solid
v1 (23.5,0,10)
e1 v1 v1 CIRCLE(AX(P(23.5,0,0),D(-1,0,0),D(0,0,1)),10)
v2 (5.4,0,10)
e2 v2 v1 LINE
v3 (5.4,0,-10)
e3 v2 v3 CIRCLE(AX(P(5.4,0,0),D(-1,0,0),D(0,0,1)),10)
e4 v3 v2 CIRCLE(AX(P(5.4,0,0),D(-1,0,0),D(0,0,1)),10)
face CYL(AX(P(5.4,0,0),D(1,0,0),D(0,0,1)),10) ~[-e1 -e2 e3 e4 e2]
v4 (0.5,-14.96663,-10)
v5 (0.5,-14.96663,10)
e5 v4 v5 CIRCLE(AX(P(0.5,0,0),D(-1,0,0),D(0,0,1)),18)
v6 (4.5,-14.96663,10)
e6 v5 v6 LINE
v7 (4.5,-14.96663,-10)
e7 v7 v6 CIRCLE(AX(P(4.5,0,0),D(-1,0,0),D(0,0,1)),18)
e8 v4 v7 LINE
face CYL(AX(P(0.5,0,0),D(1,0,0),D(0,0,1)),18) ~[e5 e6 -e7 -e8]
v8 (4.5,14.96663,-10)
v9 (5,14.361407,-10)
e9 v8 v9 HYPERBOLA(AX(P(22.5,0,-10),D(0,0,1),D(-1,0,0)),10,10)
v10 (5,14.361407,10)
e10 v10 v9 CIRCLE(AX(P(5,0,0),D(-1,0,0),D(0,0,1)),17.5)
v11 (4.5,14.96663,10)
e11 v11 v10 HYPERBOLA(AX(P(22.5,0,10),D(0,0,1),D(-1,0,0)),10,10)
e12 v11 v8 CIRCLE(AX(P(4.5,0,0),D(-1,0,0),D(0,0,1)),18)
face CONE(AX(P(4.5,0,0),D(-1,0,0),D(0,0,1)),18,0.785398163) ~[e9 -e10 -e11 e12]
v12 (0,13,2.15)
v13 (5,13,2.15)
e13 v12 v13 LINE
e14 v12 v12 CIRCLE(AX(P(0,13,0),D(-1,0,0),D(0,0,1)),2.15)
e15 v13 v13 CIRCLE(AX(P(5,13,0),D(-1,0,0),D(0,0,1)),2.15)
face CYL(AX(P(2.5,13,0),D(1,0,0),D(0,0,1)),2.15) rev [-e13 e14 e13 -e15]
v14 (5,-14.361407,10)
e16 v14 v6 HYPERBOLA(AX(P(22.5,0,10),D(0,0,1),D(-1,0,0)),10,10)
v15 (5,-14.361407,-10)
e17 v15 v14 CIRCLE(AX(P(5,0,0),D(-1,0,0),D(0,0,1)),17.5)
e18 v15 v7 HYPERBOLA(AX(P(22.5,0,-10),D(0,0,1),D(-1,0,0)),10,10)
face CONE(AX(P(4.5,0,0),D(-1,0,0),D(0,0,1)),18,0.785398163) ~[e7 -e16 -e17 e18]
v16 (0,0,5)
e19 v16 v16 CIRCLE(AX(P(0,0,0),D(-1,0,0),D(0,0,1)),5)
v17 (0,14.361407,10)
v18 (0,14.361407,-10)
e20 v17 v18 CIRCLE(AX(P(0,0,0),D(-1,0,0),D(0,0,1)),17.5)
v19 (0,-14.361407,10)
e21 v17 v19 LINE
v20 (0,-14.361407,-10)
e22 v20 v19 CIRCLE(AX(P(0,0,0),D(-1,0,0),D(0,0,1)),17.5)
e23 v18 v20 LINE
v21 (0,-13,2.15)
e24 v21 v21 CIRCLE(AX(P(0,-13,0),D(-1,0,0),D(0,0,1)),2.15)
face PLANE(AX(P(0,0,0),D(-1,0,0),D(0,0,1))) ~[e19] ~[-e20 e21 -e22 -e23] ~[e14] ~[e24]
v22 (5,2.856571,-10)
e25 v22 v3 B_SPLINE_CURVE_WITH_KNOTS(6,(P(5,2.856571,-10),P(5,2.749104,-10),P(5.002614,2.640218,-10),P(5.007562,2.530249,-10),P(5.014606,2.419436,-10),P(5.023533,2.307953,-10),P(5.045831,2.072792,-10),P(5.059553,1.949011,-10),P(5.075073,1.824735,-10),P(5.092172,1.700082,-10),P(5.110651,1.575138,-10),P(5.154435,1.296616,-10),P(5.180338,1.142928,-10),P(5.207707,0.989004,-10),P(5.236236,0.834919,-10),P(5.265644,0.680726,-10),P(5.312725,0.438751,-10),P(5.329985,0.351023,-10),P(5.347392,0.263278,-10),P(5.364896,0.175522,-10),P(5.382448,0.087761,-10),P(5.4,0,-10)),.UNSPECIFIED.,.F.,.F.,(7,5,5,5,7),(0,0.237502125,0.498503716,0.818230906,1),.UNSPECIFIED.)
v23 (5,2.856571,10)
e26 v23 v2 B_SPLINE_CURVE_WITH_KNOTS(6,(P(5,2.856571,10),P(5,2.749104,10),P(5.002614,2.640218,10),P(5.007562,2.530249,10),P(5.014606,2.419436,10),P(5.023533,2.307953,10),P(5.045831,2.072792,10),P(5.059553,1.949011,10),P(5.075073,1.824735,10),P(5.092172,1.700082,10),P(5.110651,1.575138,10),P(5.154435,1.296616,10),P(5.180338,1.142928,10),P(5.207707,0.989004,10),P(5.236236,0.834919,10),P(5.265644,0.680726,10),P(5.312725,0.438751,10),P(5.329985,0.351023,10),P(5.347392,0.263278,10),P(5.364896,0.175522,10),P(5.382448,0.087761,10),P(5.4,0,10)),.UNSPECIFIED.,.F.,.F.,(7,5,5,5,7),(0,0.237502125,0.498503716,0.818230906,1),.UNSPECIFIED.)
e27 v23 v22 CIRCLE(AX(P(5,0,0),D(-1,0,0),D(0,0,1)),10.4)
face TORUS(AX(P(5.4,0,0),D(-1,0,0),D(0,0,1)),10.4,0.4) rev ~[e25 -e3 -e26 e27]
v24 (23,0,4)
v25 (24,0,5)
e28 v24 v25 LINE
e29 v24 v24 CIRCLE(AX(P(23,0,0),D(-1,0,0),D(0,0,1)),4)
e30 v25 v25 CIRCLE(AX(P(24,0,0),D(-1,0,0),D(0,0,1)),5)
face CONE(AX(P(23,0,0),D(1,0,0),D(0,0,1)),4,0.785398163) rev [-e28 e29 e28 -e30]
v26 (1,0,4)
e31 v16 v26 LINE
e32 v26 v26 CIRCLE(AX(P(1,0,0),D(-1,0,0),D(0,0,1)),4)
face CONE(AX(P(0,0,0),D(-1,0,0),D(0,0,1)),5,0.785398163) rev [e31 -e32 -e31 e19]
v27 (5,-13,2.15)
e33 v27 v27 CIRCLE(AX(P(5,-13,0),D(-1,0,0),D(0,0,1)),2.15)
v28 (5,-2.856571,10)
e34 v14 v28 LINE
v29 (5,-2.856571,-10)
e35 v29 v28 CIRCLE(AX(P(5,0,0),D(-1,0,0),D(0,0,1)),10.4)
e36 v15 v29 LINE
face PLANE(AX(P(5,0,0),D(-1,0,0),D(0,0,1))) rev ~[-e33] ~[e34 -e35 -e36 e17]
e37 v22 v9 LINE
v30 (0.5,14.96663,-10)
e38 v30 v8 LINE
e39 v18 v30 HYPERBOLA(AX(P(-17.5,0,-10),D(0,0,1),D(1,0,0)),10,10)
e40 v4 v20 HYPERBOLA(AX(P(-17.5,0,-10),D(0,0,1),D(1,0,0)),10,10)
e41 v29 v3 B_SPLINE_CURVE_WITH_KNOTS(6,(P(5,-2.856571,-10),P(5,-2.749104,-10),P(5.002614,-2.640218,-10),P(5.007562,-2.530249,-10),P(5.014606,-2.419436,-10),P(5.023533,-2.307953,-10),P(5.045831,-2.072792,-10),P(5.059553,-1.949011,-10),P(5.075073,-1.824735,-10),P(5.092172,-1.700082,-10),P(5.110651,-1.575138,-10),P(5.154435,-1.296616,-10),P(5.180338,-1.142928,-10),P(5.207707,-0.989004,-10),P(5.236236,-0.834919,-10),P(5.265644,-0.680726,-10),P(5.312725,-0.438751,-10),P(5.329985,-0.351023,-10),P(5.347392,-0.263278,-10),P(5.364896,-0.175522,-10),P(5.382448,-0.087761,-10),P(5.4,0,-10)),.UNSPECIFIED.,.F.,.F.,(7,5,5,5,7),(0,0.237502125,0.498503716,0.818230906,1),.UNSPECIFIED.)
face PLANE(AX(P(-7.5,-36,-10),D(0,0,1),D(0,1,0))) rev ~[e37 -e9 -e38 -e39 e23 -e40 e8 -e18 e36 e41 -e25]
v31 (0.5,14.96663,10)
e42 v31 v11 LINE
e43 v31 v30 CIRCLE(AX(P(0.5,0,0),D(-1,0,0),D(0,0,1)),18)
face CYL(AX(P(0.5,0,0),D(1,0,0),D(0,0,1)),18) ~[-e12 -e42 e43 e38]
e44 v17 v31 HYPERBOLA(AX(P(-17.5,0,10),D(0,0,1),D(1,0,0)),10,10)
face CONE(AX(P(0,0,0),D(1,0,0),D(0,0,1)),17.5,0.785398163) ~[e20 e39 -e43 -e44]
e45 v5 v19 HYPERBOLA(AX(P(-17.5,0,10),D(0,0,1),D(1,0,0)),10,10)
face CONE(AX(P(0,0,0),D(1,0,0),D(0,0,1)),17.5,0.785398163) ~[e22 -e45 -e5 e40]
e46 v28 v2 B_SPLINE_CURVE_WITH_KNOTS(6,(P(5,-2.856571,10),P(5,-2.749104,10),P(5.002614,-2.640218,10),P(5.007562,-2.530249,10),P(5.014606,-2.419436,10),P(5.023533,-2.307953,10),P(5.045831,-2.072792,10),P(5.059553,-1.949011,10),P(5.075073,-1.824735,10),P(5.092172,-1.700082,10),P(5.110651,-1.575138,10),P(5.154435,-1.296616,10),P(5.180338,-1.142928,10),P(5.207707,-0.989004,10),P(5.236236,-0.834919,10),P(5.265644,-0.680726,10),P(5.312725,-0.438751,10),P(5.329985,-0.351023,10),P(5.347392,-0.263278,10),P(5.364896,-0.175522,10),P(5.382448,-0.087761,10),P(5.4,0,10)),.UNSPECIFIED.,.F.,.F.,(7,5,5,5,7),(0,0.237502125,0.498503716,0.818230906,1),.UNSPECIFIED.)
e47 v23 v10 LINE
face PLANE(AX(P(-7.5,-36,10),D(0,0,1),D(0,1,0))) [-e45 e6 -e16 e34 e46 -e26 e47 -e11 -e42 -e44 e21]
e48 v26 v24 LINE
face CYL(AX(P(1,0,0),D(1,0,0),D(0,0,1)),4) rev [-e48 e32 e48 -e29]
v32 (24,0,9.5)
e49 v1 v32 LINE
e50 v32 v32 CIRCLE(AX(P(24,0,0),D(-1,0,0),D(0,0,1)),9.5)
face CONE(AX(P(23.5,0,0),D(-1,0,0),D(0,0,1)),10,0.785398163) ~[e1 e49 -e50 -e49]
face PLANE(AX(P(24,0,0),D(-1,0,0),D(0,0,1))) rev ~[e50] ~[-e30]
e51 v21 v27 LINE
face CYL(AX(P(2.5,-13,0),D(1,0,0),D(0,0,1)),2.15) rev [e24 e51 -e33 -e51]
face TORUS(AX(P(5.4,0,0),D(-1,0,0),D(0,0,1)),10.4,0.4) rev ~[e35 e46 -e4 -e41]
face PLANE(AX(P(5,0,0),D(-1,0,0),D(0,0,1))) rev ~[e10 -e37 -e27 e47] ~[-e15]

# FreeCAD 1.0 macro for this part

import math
import FreeCAD as App
import Part
import Sketcher
Q = App.Units.Quantity


def add_polygon(sketch, points):
    """Adds a closed chain of lines whose ends are joined by coincident constraints."""
    first, n = sketch.GeometryCount, len(points)
    for a, b in zip(points, points[1:] + points[:1]):
        sketch.addGeometry(Part.LineSegment(App.Vector(*a, 0), App.Vector(*b, 0)), False)
    for i in range(n):
        sketch.addConstraint(Sketcher.Constraint("Coincident", first + i, 2, first + (i + 1) % n, 1))

doc = App.newDocument("Part")
body = doc.addObject("PartDesign::Body", "Body")

sketch1 = body.newObject("Sketcher::SketchObject", "Sketch")
sketch1.AttachmentSupport = (doc.getObject("XY_Plane"), [""])
sketch1.MapMode = "FlatFace"
sketch1.addGeometry([
    Part.LineSegment(App.Vector(0, 17.5, 0), App.Vector(0, 0, 0)),
    Part.LineSegment(App.Vector(0, 0, 0), App.Vector(24, 0, 0)),
    Part.LineSegment(App.Vector(24, 0, 0), App.Vector(24, 9.5, 0)),
    Part.LineSegment(App.Vector(24, 9.5, 0), App.Vector(23.5, 10, 0)),
    Part.LineSegment(App.Vector(23.5, 10, 0), App.Vector(5.4, 10, 0)),
    Part.ArcOfCircle(Part.Circle(App.Vector(5.4, 10.4, 0), App.Vector(0, 0, 1), 0.4), math.radians(-180), math.radians(-90)),
    Part.LineSegment(App.Vector(5, 10.4, 0), App.Vector(5, 17.5, 0)),
    Part.LineSegment(App.Vector(5, 17.5, 0), App.Vector(4.5, 18, 0)),
    Part.LineSegment(App.Vector(4.5, 18, 0), App.Vector(0.5, 18, 0)),
    Part.LineSegment(App.Vector(0.5, 18, 0), App.Vector(0, 17.5, 0)),
], False)
sketch1.addConstraint([
    Sketcher.Constraint("Coincident", 0, 2, 1, 1),
    Sketcher.Constraint("Coincident", 1, 2, 2, 1),
    Sketcher.Constraint("Coincident", 2, 2, 3, 1),
    Sketcher.Constraint("Coincident", 3, 2, 4, 1),
    Sketcher.Constraint("Tangent", 4, 2, 5, 2),
    Sketcher.Constraint("Tangent", 5, 1, 6, 1),
    Sketcher.Constraint("Coincident", 6, 2, 7, 1),
    Sketcher.Constraint("Coincident", 7, 2, 8, 1),
    Sketcher.Constraint("Coincident", 8, 2, 9, 1),
    Sketcher.Constraint("Coincident", 9, 2, 0, 1),
    Sketcher.Constraint("Vertical", 0),
    Sketcher.Constraint("Horizontal", 1),
    Sketcher.Constraint("Vertical", 2),
    Sketcher.Constraint("Horizontal", 4),
    Sketcher.Constraint("Vertical", 6),
    Sketcher.Constraint("Horizontal", 8),
    Sketcher.Constraint("Coincident", 0, 2, -1, 1),
    Sketcher.Constraint("Parallel", 3, 7),
    Sketcher.Constraint("Perpendicular", 7, 9),
    Sketcher.Constraint("Horizontal", 6, 2, 9, 2),
    Sketcher.Constraint("Equal", 3, 7),
    Sketcher.Constraint("Equal", 7, 9),
    Sketcher.Constraint("Radius", 5, Q("0.4 mm")),
    Sketcher.Constraint("DistanceX", 1, 1, 1, 2, Q("24 mm")),
    Sketcher.Constraint("DistanceX", 8, 2, 8, 1, Q("4 mm")),
    Sketcher.Constraint("DistanceX", 4, 2, 4, 1, Q("18.1 mm")),
    Sketcher.Constraint("DistanceY", 0, 2, 0, 1, Q("17.5 mm")),
    Sketcher.Constraint("DistanceY", 2, 1, 2, 2, Q("9.5 mm")),
])
revolution = body.newObject("PartDesign::Revolution", "Revolution")
revolution.Profile = sketch1
revolution.ReferenceAxis = (sketch1, ["H_Axis"])
revolution.Angle = 360

sketch2 = body.newObject("Sketcher::SketchObject", "Sketch001")
sketch2.AttachmentSupport = (doc.getObject("XY_Plane"), [""])
sketch2.MapMode = "FlatFace"
add_polygon(sketch2, [(0, 5), (0, 0), (24, 0), (24, 5), (23, 4), (1, 4)])
sketch2.addConstraint([
    Sketcher.Constraint("Vertical", 0),
    Sketcher.Constraint("Horizontal", 1),
    Sketcher.Constraint("Vertical", 2),
    Sketcher.Constraint("Horizontal", 4),
    Sketcher.Constraint("Coincident", 0, 2, -1, 1),
    Sketcher.Constraint("Perpendicular", 3, 5),
    Sketcher.Constraint("Horizontal", 2, 2, 5, 2),
    Sketcher.Constraint("Equal", 3, 5),
    Sketcher.Constraint("DistanceX", 1, 1, 1, 2, Q("24 mm")),
    Sketcher.Constraint("DistanceX", 4, 2, 4, 1, Q("22 mm")),
    Sketcher.Constraint("DistanceY", 0, 2, 0, 1, Q("5 mm")),
])
groove = body.newObject("PartDesign::Groove", "Groove")
groove.Profile = sketch2
groove.ReferenceAxis = (sketch2, ["H_Axis"])
groove.Angle = 360

sketch3 = body.newObject("Sketcher::SketchObject", "Sketch002")
sketch3.AttachmentSupport = (doc.getObject("XY_Plane"), [""])
sketch3.MapMode = "FlatFace"
add_polygon(sketch3, [(0, 15.2), (0, 13), (5, 13), (5, 15.2)])
sketch3.addGeometry(Part.LineSegment(App.Vector(5, 13, 0), App.Vector(0, 13, 0)), True)
sketch3.addConstraint([
    Sketcher.Constraint("Vertical", 0),
    Sketcher.Constraint("Horizontal", 1),
    Sketcher.Constraint("Vertical", 2),
    Sketcher.Constraint("Horizontal", 3),
    Sketcher.Constraint("Horizontal", 4),
    Sketcher.Constraint("Coincident", 4, 1, 1, 2),
    Sketcher.Constraint("PointOnObject", 0, 2, -2),
    Sketcher.Constraint("PointOnObject", 4, 2, -2),
    Sketcher.Constraint("DistanceX", 1, 1, 1, 2, Q("5 mm")),
    Sketcher.Constraint("DistanceY", -1, 1, 0, 2, Q("13 mm")),
    Sketcher.Constraint("DistanceY", 0, 2, 0, 1, Q("2.15 mm")),
])
groove2 = body.newObject("PartDesign::Groove", "Groove001")
groove2.Profile = sketch3
groove2.ReferenceAxis = (sketch3, ["Axis0"])
groove2.Angle = 360

sketch4 = body.newObject("Sketcher::SketchObject", "Sketch003")
sketch4.AttachmentSupport = (doc.getObject("XY_Plane"), [""])
sketch4.MapMode = "FlatFace"
add_polygon(sketch4, [(0, -10.8), (0, -13), (5, -13), (5, -10.8)])
sketch4.addGeometry(Part.LineSegment(App.Vector(5, -13, 0), App.Vector(0, -13, 0)), True)
sketch4.addConstraint([
    Sketcher.Constraint("Vertical", 0),
    Sketcher.Constraint("Horizontal", 1),
    Sketcher.Constraint("Vertical", 2),
    Sketcher.Constraint("Horizontal", 3),
    Sketcher.Constraint("Horizontal", 4),
    Sketcher.Constraint("Coincident", 4, 1, 1, 2),
    Sketcher.Constraint("PointOnObject", 0, 2, -2),
    Sketcher.Constraint("PointOnObject", 4, 2, -2),
    Sketcher.Constraint("DistanceX", 1, 1, 1, 2, Q("5 mm")),
    Sketcher.Constraint("DistanceY", 0, 2, -1, 1, Q("13 mm")),
    Sketcher.Constraint("DistanceY", 0, 2, 0, 1, Q("2.15 mm")),
])
groove3 = body.newObject("PartDesign::Groove", "Groove002")
groove3.Profile = sketch4
groove3.ReferenceAxis = (sketch4, ["Axis0"])
groove3.Angle = 360

sketch5 = body.newObject("Sketcher::SketchObject", "Sketch004")
sketch5.AttachmentSupport = (doc.getObject("YZ_Plane"), [""])
sketch5.MapMode = "FlatFace"
add_polygon(sketch5, [(54, 20), (-54, 20), (-54, -20), (54, -20)])
add_polygon(sketch5, [(-36, -10), (-36, 10), (36, 10), (36, -10)])
sketch5.addConstraint([
    Sketcher.Constraint("Horizontal", 0),
    Sketcher.Constraint("Vertical", 1),
    Sketcher.Constraint("Horizontal", 2),
    Sketcher.Constraint("Vertical", 3),
    Sketcher.Constraint("Vertical", 4),
    Sketcher.Constraint("Horizontal", 5),
    Sketcher.Constraint("Vertical", 6),
    Sketcher.Constraint("Horizontal", 7),
    Sketcher.Constraint("Symmetric", 0, 2, 2, 2, -1, 1),
    Sketcher.Constraint("Symmetric", 4, 2, 6, 2, -1, 1),
    Sketcher.Constraint("DistanceX", 0, 2, 0, 1, Q("108 mm")),
    Sketcher.Constraint("DistanceX", 5, 1, 5, 2, Q("72 mm")),
    Sketcher.Constraint("DistanceY", 1, 2, 1, 1, Q("40 mm")),
    Sketcher.Constraint("DistanceY", 4, 1, 4, 2, Q("20 mm")),
])
pocket1 = body.newObject("PartDesign::Pocket", "Pocket")
pocket1.Profile = sketch5
pocket1.Type = "ThroughAll"
pocket1.Midplane = True

doc.recompute()
